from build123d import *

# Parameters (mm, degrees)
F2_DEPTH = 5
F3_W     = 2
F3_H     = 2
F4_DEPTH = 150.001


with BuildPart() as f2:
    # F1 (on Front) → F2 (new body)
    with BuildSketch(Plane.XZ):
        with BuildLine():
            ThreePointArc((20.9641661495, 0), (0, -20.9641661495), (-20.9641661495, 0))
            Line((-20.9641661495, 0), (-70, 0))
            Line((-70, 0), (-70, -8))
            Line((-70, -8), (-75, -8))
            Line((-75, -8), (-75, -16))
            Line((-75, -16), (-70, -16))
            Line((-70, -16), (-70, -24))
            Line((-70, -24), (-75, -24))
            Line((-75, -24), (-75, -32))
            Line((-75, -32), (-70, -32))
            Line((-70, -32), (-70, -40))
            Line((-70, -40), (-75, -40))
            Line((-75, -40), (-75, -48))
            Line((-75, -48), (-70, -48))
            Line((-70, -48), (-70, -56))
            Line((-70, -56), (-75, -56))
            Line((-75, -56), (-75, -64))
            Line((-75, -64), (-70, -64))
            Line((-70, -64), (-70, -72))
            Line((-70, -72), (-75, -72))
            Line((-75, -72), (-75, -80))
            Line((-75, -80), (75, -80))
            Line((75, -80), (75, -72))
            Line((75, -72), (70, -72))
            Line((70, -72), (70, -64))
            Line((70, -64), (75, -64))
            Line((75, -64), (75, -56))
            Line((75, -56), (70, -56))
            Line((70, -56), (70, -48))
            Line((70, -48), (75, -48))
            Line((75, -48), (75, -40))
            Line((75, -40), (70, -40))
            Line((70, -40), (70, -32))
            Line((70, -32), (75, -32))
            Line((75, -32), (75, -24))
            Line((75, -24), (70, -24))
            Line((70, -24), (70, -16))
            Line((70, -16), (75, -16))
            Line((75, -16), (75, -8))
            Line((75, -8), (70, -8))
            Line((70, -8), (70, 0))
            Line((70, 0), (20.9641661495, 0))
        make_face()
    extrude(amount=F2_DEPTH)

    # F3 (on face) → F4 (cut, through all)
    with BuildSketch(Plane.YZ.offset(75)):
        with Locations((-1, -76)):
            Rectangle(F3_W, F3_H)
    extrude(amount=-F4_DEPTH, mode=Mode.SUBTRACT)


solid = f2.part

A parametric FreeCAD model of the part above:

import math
import FreeCAD as App
import Part
import Sketcher

V = App.Vector
Q = App.Units.Quantity

doc = App.newDocument("Part")
body = doc.addObject("PartDesign::Body", "Body")

# Sketch on XZ plane
sketch1 = body.newObject("Sketcher::SketchObject", "Sketch")
sketch1.AttachmentSupport = (doc.getObject("XZ_Plane"), [""])
sketch1.MapMode = "FlatFace"
sketch1.addGeometry([
    Part.ArcOfCircle(Part.Circle(V(0, 0, 0), V(0, 0, 1), 21), math.radians(180), math.radians(360)),  # 0
    Part.LineSegment(V(-21, 0, 0), V(-70, 0, 0)),  # 1
    Part.LineSegment(V(-70, 0, 0), V(-70, -8, 0)),  # 2
    Part.LineSegment(V(-70, -8, 0), V(-75, -8, 0)),  # 3
    Part.LineSegment(V(-75, -8, 0), V(-75, -16, 0)),  # 4
    Part.LineSegment(V(-75, -16, 0), V(-70, -16, 0)),  # 5
    Part.LineSegment(V(-70, -16, 0), V(-70, -24, 0)),  # 6
    Part.LineSegment(V(-70, -24, 0), V(-75, -24, 0)),  # 7
    Part.LineSegment(V(-75, -24, 0), V(-75, -32, 0)),  # 8
    Part.LineSegment(V(-75, -32, 0), V(-70, -32, 0)),  # 9
    Part.LineSegment(V(-70, -32, 0), V(-70, -40, 0)),  # 10
    Part.LineSegment(V(-70, -40, 0), V(-75, -40, 0)),  # 11
    Part.LineSegment(V(-75, -40, 0), V(-75, -48, 0)),  # 12
    Part.LineSegment(V(-75, -48, 0), V(-70, -48, 0)),  # 13
    Part.LineSegment(V(-70, -48, 0), V(-70, -56, 0)),  # 14
    Part.LineSegment(V(-70, -56, 0), V(-75, -56, 0)),  # 15
    Part.LineSegment(V(-75, -56, 0), V(-75, -64, 0)),  # 16
    Part.LineSegment(V(-75, -64, 0), V(-70, -64, 0)),  # 17
    Part.LineSegment(V(-70, -64, 0), V(-70, -72, 0)),  # 18
    Part.LineSegment(V(-70, -72, 0), V(-75, -72, 0)),  # 19
    Part.LineSegment(V(-75, -72, 0), V(-75, -80, 0)),  # 20
    Part.LineSegment(V(-75, -80, 0), V(75, -80, 0)),  # 21
    Part.LineSegment(V(75, -80, 0), V(75, -72, 0)),  # 22
    Part.LineSegment(V(75, -72, 0), V(70, -72, 0)),  # 23
    Part.LineSegment(V(70, -72, 0), V(70, -64, 0)),  # 24
    Part.LineSegment(V(70, -64, 0), V(75, -64, 0)),  # 25
    Part.LineSegment(V(75, -64, 0), V(75, -56, 0)),  # 26
    Part.LineSegment(V(75, -56, 0), V(70, -56, 0)),  # 27
    Part.LineSegment(V(70, -56, 0), V(70, -48, 0)),  # 28
    Part.LineSegment(V(70, -48, 0), V(75, -48, 0)),  # 29
    Part.LineSegment(V(75, -48, 0), V(75, -40, 0)),  # 30
    Part.LineSegment(V(75, -40, 0), V(70, -40, 0)),  # 31
    Part.LineSegment(V(70, -40, 0), V(70, -32, 0)),  # 32
    Part.LineSegment(V(70, -32, 0), V(75, -32, 0)),  # 33
    Part.LineSegment(V(75, -32, 0), V(75, -24, 0)),  # 34
    Part.LineSegment(V(75, -24, 0), V(70, -24, 0)),  # 35
    Part.LineSegment(V(70, -24, 0), V(70, -16, 0)),  # 36
    Part.LineSegment(V(70, -16, 0), V(75, -16, 0)),  # 37
    Part.LineSegment(V(75, -16, 0), V(75, -8, 0)),  # 38
    Part.LineSegment(V(75, -8, 0), V(70, -8, 0)),  # 39
    Part.LineSegment(V(70, -8, 0), V(70, 0, 0)),  # 40
    Part.LineSegment(V(70, 0, 0), V(21, 0, 0)),  # 41
], False)
sketch1.addConstraint([
    Sketcher.Constraint("Coincident", 0, 1, 1, 1),
    Sketcher.Constraint("Coincident", 1, 2, 2, 1),
    Sketcher.Constraint("Coincident", 2, 2, 3, 1),
    Sketcher.Constraint("Coincident", 3, 2, 4, 1),
    Sketcher.Constraint("Coincident", 4, 2, 5, 1),
    Sketcher.Constraint("Coincident", 5, 2, 6, 1),
    Sketcher.Constraint("Coincident", 6, 2, 7, 1),
    Sketcher.Constraint("Coincident", 7, 2, 8, 1),
    Sketcher.Constraint("Coincident", 8, 2, 9, 1),
    Sketcher.Constraint("Coincident", 9, 2, 10, 1),
    Sketcher.Constraint("Coincident", 10, 2, 11, 1),
    Sketcher.Constraint("Coincident", 11, 2, 12, 1),
    Sketcher.Constraint("Coincident", 12, 2, 13, 1),
    Sketcher.Constraint("Coincident", 13, 2, 14, 1),
    Sketcher.Constraint("Coincident", 14, 2, 15, 1),
    Sketcher.Constraint("Coincident", 15, 2, 16, 1),
    Sketcher.Constraint("Coincident", 16, 2, 17, 1),
    Sketcher.Constraint("Coincident", 17, 2, 18, 1),
    Sketcher.Constraint("Coincident", 18, 2, 19, 1),
    Sketcher.Constraint("Coincident", 19, 2, 20, 1),
    Sketcher.Constraint("Coincident", 20, 2, 21, 1),
    Sketcher.Constraint("Coincident", 21, 2, 22, 1),
    Sketcher.Constraint("Coincident", 22, 2, 23, 1),
    Sketcher.Constraint("Coincident", 23, 2, 24, 1),
    Sketcher.Constraint("Coincident", 24, 2, 25, 1),
    Sketcher.Constraint("Coincident", 25, 2, 26, 1),
    Sketcher.Constraint("Coincident", 26, 2, 27, 1),
    Sketcher.Constraint("Coincident", 27, 2, 28, 1),
    Sketcher.Constraint("Coincident", 28, 2, 29, 1),
    Sketcher.Constraint("Coincident", 29, 2, 30, 1),
    Sketcher.Constraint("Coincident", 30, 2, 31, 1),
    Sketcher.Constraint("Coincident", 31, 2, 32, 1),
    Sketcher.Constraint("Coincident", 32, 2, 33, 1),
    Sketcher.Constraint("Coincident", 33, 2, 34, 1),
    Sketcher.Constraint("Coincident", 34, 2, 35, 1),
    Sketcher.Constraint("Coincident", 35, 2, 36, 1),
    Sketcher.Constraint("Coincident", 36, 2, 37, 1),
    Sketcher.Constraint("Coincident", 37, 2, 38, 1),
    Sketcher.Constraint("Coincident", 38, 2, 39, 1),
    Sketcher.Constraint("Coincident", 39, 2, 40, 1),
    Sketcher.Constraint("Coincident", 40, 2, 41, 1),
    Sketcher.Constraint("Coincident", 41, 2, 0, 2),
    Sketcher.Constraint("Horizontal", 1),
    Sketcher.Constraint("Vertical", 2),
    Sketcher.Constraint("Horizontal", 3),
    Sketcher.Constraint("Vertical", 4),
    Sketcher.Constraint("Horizontal", 5),
    Sketcher.Constraint("Vertical", 6),
    Sketcher.Constraint("Horizontal", 7),
    Sketcher.Constraint("Vertical", 8),
    Sketcher.Constraint("Horizontal", 9),
    Sketcher.Constraint("Vertical", 10),
    Sketcher.Constraint("Horizontal", 11),
    Sketcher.Constraint("Vertical", 12),
    Sketcher.Constraint("Horizontal", 13),
    Sketcher.Constraint("Vertical", 14),
    Sketcher.Constraint("Horizontal", 15),
    Sketcher.Constraint("Vertical", 16),
    Sketcher.Constraint("Horizontal", 17),
    Sketcher.Constraint("Vertical", 18),
    Sketcher.Constraint("Horizontal", 19),
    Sketcher.Constraint("Vertical", 20),
    Sketcher.Constraint("Horizontal", 21),
    Sketcher.Constraint("Vertical", 22),
    Sketcher.Constraint("Horizontal", 23),
    Sketcher.Constraint("Vertical", 24),
    Sketcher.Constraint("Horizontal", 25),
    Sketcher.Constraint("Vertical", 26),
    Sketcher.Constraint("Horizontal", 27),
    Sketcher.Constraint("Vertical", 28),
    Sketcher.Constraint("Horizontal", 29),
    Sketcher.Constraint("Vertical", 30),
    Sketcher.Constraint("Horizontal", 31),
    Sketcher.Constraint("Vertical", 32),
    Sketcher.Constraint("Horizontal", 33),
    Sketcher.Constraint("Vertical", 34),
    Sketcher.Constraint("Horizontal", 35),
    Sketcher.Constraint("Vertical", 36),
    Sketcher.Constraint("Horizontal", 37),
    Sketcher.Constraint("Vertical", 38),
    Sketcher.Constraint("Horizontal", 39),
    Sketcher.Constraint("Vertical", 40),
    Sketcher.Constraint("Horizontal", 41),
    Sketcher.Constraint("Coincident", 0, 3, -1, 1),
    Sketcher.Constraint("Symmetric", 1, 2, 40, 2, -1, 1),
    Sketcher.Constraint("Symmetric", 19, 2, 22, 2, -2),
    Sketcher.Constraint("Symmetric", 17, 2, 24, 2, -2),
    Sketcher.Constraint("Symmetric", 15, 2, 26, 2, -2),
    Sketcher.Constraint("Symmetric", 13, 2, 28, 2, -2),
    Sketcher.Constraint("Symmetric", 11, 2, 30, 2, -2),
    Sketcher.Constraint("Symmetric", 9, 2, 32, 2, -2),
    Sketcher.Constraint("Symmetric", 7, 2, 34, 2, -2),
    Sketcher.Constraint("Symmetric", 5, 2, 36, 2, -2),
    Sketcher.Constraint("Symmetric", 3, 2, 38, 2, -2),
    Sketcher.Constraint("PointOnObject", 0, 1, -1),
    Sketcher.Constraint("Vertical", 2, 2, 5, 2),
    Sketcher.Constraint("Vertical", 4, 2, 7, 2),
    Sketcher.Constraint("Vertical", 6, 2, 9, 2),
    Sketcher.Constraint("Vertical", 8, 2, 11, 2),
    Sketcher.Constraint("Vertical", 10, 2, 13, 2),
    Sketcher.Constraint("Vertical", 12, 2, 15, 2),
    Sketcher.Constraint("Vertical", 14, 2, 17, 2),
    Sketcher.Constraint("Vertical", 16, 2, 19, 2),
    Sketcher.Constraint("Equal", 2, 4),
    Sketcher.Constraint("Equal", 4, 6),
    Sketcher.Constraint("Equal", 6, 8),
    Sketcher.Constraint("Equal", 8, 10),
    Sketcher.Constraint("Equal", 10, 12),
    Sketcher.Constraint("Equal", 12, 14),
    Sketcher.Constraint("Equal", 14, 16),
    Sketcher.Constraint("Equal", 16, 18),
    Sketcher.Constraint("Equal", 18, 20),
    Sketcher.Constraint("DistanceX", 3, 2, 3, 1, Q("5 mm")),
    Sketcher.Constraint("DistanceX", 21, 1, 21, 2, Q("150 mm")),
    Sketcher.Constraint("DistanceY", 2, 2, 2, 1, Q("8 mm")),
    Sketcher.Constraint("Radius", 0, Q("20.964166 mm")),
])
pad1 = body.newObject("PartDesign::Pad", "Pad")
pad1.Profile = sketch1
pad1.Length = 5

# Sketch on YZ plane
sketch2 = body.newObject("Sketcher::SketchObject", "Sketch001")
sketch2.AttachmentSupport = (doc.getObject("YZ_Plane"), [""])
sketch2.MapMode = "FlatFace"
sketch2.AttachmentOffset = App.Placement(V(0, 0, 75), App.Rotation())
sketch2.addGeometry([
    Part.LineSegment(V(-2, -75, 0), V(-2, -77, 0)),
    Part.LineSegment(V(-2, -77, 0), V(0, -77, 0)),
    Part.LineSegment(V(0, -77, 0), V(0, -75, 0)),
    Part.LineSegment(V(0, -75, 0), V(-2, -75, 0)),
], False)
sketch2.addConstraint([
    Sketcher.Constraint("Coincident", 0, 2, 1, 1),
    Sketcher.Constraint("Coincident", 1, 2, 2, 1),
    Sketcher.Constraint("Coincident", 2, 2, 3, 1),
    Sketcher.Constraint("Coincident", 3, 2, 0, 1),
    Sketcher.Constraint("Vertical", 0),
    Sketcher.Constraint("Horizontal", 1),
    Sketcher.Constraint("Vertical", 2),
    Sketcher.Constraint("Horizontal", 3),
    Sketcher.Constraint("PointOnObject", 1, 2, -2),
    Sketcher.Constraint("Equal", 3, 0),
    Sketcher.Constraint("DistanceX", 1, 1, 1, 2, Q("2 mm")),
    Sketcher.Constraint("DistanceY", 0, 2, -1, 1, Q("77 mm")),
])
pocket1 = body.newObject("PartDesign::Pocket", "Pocket")
pocket1.Profile = sketch2
pocket1.Type = "ThroughAll"

doc.recompute()
